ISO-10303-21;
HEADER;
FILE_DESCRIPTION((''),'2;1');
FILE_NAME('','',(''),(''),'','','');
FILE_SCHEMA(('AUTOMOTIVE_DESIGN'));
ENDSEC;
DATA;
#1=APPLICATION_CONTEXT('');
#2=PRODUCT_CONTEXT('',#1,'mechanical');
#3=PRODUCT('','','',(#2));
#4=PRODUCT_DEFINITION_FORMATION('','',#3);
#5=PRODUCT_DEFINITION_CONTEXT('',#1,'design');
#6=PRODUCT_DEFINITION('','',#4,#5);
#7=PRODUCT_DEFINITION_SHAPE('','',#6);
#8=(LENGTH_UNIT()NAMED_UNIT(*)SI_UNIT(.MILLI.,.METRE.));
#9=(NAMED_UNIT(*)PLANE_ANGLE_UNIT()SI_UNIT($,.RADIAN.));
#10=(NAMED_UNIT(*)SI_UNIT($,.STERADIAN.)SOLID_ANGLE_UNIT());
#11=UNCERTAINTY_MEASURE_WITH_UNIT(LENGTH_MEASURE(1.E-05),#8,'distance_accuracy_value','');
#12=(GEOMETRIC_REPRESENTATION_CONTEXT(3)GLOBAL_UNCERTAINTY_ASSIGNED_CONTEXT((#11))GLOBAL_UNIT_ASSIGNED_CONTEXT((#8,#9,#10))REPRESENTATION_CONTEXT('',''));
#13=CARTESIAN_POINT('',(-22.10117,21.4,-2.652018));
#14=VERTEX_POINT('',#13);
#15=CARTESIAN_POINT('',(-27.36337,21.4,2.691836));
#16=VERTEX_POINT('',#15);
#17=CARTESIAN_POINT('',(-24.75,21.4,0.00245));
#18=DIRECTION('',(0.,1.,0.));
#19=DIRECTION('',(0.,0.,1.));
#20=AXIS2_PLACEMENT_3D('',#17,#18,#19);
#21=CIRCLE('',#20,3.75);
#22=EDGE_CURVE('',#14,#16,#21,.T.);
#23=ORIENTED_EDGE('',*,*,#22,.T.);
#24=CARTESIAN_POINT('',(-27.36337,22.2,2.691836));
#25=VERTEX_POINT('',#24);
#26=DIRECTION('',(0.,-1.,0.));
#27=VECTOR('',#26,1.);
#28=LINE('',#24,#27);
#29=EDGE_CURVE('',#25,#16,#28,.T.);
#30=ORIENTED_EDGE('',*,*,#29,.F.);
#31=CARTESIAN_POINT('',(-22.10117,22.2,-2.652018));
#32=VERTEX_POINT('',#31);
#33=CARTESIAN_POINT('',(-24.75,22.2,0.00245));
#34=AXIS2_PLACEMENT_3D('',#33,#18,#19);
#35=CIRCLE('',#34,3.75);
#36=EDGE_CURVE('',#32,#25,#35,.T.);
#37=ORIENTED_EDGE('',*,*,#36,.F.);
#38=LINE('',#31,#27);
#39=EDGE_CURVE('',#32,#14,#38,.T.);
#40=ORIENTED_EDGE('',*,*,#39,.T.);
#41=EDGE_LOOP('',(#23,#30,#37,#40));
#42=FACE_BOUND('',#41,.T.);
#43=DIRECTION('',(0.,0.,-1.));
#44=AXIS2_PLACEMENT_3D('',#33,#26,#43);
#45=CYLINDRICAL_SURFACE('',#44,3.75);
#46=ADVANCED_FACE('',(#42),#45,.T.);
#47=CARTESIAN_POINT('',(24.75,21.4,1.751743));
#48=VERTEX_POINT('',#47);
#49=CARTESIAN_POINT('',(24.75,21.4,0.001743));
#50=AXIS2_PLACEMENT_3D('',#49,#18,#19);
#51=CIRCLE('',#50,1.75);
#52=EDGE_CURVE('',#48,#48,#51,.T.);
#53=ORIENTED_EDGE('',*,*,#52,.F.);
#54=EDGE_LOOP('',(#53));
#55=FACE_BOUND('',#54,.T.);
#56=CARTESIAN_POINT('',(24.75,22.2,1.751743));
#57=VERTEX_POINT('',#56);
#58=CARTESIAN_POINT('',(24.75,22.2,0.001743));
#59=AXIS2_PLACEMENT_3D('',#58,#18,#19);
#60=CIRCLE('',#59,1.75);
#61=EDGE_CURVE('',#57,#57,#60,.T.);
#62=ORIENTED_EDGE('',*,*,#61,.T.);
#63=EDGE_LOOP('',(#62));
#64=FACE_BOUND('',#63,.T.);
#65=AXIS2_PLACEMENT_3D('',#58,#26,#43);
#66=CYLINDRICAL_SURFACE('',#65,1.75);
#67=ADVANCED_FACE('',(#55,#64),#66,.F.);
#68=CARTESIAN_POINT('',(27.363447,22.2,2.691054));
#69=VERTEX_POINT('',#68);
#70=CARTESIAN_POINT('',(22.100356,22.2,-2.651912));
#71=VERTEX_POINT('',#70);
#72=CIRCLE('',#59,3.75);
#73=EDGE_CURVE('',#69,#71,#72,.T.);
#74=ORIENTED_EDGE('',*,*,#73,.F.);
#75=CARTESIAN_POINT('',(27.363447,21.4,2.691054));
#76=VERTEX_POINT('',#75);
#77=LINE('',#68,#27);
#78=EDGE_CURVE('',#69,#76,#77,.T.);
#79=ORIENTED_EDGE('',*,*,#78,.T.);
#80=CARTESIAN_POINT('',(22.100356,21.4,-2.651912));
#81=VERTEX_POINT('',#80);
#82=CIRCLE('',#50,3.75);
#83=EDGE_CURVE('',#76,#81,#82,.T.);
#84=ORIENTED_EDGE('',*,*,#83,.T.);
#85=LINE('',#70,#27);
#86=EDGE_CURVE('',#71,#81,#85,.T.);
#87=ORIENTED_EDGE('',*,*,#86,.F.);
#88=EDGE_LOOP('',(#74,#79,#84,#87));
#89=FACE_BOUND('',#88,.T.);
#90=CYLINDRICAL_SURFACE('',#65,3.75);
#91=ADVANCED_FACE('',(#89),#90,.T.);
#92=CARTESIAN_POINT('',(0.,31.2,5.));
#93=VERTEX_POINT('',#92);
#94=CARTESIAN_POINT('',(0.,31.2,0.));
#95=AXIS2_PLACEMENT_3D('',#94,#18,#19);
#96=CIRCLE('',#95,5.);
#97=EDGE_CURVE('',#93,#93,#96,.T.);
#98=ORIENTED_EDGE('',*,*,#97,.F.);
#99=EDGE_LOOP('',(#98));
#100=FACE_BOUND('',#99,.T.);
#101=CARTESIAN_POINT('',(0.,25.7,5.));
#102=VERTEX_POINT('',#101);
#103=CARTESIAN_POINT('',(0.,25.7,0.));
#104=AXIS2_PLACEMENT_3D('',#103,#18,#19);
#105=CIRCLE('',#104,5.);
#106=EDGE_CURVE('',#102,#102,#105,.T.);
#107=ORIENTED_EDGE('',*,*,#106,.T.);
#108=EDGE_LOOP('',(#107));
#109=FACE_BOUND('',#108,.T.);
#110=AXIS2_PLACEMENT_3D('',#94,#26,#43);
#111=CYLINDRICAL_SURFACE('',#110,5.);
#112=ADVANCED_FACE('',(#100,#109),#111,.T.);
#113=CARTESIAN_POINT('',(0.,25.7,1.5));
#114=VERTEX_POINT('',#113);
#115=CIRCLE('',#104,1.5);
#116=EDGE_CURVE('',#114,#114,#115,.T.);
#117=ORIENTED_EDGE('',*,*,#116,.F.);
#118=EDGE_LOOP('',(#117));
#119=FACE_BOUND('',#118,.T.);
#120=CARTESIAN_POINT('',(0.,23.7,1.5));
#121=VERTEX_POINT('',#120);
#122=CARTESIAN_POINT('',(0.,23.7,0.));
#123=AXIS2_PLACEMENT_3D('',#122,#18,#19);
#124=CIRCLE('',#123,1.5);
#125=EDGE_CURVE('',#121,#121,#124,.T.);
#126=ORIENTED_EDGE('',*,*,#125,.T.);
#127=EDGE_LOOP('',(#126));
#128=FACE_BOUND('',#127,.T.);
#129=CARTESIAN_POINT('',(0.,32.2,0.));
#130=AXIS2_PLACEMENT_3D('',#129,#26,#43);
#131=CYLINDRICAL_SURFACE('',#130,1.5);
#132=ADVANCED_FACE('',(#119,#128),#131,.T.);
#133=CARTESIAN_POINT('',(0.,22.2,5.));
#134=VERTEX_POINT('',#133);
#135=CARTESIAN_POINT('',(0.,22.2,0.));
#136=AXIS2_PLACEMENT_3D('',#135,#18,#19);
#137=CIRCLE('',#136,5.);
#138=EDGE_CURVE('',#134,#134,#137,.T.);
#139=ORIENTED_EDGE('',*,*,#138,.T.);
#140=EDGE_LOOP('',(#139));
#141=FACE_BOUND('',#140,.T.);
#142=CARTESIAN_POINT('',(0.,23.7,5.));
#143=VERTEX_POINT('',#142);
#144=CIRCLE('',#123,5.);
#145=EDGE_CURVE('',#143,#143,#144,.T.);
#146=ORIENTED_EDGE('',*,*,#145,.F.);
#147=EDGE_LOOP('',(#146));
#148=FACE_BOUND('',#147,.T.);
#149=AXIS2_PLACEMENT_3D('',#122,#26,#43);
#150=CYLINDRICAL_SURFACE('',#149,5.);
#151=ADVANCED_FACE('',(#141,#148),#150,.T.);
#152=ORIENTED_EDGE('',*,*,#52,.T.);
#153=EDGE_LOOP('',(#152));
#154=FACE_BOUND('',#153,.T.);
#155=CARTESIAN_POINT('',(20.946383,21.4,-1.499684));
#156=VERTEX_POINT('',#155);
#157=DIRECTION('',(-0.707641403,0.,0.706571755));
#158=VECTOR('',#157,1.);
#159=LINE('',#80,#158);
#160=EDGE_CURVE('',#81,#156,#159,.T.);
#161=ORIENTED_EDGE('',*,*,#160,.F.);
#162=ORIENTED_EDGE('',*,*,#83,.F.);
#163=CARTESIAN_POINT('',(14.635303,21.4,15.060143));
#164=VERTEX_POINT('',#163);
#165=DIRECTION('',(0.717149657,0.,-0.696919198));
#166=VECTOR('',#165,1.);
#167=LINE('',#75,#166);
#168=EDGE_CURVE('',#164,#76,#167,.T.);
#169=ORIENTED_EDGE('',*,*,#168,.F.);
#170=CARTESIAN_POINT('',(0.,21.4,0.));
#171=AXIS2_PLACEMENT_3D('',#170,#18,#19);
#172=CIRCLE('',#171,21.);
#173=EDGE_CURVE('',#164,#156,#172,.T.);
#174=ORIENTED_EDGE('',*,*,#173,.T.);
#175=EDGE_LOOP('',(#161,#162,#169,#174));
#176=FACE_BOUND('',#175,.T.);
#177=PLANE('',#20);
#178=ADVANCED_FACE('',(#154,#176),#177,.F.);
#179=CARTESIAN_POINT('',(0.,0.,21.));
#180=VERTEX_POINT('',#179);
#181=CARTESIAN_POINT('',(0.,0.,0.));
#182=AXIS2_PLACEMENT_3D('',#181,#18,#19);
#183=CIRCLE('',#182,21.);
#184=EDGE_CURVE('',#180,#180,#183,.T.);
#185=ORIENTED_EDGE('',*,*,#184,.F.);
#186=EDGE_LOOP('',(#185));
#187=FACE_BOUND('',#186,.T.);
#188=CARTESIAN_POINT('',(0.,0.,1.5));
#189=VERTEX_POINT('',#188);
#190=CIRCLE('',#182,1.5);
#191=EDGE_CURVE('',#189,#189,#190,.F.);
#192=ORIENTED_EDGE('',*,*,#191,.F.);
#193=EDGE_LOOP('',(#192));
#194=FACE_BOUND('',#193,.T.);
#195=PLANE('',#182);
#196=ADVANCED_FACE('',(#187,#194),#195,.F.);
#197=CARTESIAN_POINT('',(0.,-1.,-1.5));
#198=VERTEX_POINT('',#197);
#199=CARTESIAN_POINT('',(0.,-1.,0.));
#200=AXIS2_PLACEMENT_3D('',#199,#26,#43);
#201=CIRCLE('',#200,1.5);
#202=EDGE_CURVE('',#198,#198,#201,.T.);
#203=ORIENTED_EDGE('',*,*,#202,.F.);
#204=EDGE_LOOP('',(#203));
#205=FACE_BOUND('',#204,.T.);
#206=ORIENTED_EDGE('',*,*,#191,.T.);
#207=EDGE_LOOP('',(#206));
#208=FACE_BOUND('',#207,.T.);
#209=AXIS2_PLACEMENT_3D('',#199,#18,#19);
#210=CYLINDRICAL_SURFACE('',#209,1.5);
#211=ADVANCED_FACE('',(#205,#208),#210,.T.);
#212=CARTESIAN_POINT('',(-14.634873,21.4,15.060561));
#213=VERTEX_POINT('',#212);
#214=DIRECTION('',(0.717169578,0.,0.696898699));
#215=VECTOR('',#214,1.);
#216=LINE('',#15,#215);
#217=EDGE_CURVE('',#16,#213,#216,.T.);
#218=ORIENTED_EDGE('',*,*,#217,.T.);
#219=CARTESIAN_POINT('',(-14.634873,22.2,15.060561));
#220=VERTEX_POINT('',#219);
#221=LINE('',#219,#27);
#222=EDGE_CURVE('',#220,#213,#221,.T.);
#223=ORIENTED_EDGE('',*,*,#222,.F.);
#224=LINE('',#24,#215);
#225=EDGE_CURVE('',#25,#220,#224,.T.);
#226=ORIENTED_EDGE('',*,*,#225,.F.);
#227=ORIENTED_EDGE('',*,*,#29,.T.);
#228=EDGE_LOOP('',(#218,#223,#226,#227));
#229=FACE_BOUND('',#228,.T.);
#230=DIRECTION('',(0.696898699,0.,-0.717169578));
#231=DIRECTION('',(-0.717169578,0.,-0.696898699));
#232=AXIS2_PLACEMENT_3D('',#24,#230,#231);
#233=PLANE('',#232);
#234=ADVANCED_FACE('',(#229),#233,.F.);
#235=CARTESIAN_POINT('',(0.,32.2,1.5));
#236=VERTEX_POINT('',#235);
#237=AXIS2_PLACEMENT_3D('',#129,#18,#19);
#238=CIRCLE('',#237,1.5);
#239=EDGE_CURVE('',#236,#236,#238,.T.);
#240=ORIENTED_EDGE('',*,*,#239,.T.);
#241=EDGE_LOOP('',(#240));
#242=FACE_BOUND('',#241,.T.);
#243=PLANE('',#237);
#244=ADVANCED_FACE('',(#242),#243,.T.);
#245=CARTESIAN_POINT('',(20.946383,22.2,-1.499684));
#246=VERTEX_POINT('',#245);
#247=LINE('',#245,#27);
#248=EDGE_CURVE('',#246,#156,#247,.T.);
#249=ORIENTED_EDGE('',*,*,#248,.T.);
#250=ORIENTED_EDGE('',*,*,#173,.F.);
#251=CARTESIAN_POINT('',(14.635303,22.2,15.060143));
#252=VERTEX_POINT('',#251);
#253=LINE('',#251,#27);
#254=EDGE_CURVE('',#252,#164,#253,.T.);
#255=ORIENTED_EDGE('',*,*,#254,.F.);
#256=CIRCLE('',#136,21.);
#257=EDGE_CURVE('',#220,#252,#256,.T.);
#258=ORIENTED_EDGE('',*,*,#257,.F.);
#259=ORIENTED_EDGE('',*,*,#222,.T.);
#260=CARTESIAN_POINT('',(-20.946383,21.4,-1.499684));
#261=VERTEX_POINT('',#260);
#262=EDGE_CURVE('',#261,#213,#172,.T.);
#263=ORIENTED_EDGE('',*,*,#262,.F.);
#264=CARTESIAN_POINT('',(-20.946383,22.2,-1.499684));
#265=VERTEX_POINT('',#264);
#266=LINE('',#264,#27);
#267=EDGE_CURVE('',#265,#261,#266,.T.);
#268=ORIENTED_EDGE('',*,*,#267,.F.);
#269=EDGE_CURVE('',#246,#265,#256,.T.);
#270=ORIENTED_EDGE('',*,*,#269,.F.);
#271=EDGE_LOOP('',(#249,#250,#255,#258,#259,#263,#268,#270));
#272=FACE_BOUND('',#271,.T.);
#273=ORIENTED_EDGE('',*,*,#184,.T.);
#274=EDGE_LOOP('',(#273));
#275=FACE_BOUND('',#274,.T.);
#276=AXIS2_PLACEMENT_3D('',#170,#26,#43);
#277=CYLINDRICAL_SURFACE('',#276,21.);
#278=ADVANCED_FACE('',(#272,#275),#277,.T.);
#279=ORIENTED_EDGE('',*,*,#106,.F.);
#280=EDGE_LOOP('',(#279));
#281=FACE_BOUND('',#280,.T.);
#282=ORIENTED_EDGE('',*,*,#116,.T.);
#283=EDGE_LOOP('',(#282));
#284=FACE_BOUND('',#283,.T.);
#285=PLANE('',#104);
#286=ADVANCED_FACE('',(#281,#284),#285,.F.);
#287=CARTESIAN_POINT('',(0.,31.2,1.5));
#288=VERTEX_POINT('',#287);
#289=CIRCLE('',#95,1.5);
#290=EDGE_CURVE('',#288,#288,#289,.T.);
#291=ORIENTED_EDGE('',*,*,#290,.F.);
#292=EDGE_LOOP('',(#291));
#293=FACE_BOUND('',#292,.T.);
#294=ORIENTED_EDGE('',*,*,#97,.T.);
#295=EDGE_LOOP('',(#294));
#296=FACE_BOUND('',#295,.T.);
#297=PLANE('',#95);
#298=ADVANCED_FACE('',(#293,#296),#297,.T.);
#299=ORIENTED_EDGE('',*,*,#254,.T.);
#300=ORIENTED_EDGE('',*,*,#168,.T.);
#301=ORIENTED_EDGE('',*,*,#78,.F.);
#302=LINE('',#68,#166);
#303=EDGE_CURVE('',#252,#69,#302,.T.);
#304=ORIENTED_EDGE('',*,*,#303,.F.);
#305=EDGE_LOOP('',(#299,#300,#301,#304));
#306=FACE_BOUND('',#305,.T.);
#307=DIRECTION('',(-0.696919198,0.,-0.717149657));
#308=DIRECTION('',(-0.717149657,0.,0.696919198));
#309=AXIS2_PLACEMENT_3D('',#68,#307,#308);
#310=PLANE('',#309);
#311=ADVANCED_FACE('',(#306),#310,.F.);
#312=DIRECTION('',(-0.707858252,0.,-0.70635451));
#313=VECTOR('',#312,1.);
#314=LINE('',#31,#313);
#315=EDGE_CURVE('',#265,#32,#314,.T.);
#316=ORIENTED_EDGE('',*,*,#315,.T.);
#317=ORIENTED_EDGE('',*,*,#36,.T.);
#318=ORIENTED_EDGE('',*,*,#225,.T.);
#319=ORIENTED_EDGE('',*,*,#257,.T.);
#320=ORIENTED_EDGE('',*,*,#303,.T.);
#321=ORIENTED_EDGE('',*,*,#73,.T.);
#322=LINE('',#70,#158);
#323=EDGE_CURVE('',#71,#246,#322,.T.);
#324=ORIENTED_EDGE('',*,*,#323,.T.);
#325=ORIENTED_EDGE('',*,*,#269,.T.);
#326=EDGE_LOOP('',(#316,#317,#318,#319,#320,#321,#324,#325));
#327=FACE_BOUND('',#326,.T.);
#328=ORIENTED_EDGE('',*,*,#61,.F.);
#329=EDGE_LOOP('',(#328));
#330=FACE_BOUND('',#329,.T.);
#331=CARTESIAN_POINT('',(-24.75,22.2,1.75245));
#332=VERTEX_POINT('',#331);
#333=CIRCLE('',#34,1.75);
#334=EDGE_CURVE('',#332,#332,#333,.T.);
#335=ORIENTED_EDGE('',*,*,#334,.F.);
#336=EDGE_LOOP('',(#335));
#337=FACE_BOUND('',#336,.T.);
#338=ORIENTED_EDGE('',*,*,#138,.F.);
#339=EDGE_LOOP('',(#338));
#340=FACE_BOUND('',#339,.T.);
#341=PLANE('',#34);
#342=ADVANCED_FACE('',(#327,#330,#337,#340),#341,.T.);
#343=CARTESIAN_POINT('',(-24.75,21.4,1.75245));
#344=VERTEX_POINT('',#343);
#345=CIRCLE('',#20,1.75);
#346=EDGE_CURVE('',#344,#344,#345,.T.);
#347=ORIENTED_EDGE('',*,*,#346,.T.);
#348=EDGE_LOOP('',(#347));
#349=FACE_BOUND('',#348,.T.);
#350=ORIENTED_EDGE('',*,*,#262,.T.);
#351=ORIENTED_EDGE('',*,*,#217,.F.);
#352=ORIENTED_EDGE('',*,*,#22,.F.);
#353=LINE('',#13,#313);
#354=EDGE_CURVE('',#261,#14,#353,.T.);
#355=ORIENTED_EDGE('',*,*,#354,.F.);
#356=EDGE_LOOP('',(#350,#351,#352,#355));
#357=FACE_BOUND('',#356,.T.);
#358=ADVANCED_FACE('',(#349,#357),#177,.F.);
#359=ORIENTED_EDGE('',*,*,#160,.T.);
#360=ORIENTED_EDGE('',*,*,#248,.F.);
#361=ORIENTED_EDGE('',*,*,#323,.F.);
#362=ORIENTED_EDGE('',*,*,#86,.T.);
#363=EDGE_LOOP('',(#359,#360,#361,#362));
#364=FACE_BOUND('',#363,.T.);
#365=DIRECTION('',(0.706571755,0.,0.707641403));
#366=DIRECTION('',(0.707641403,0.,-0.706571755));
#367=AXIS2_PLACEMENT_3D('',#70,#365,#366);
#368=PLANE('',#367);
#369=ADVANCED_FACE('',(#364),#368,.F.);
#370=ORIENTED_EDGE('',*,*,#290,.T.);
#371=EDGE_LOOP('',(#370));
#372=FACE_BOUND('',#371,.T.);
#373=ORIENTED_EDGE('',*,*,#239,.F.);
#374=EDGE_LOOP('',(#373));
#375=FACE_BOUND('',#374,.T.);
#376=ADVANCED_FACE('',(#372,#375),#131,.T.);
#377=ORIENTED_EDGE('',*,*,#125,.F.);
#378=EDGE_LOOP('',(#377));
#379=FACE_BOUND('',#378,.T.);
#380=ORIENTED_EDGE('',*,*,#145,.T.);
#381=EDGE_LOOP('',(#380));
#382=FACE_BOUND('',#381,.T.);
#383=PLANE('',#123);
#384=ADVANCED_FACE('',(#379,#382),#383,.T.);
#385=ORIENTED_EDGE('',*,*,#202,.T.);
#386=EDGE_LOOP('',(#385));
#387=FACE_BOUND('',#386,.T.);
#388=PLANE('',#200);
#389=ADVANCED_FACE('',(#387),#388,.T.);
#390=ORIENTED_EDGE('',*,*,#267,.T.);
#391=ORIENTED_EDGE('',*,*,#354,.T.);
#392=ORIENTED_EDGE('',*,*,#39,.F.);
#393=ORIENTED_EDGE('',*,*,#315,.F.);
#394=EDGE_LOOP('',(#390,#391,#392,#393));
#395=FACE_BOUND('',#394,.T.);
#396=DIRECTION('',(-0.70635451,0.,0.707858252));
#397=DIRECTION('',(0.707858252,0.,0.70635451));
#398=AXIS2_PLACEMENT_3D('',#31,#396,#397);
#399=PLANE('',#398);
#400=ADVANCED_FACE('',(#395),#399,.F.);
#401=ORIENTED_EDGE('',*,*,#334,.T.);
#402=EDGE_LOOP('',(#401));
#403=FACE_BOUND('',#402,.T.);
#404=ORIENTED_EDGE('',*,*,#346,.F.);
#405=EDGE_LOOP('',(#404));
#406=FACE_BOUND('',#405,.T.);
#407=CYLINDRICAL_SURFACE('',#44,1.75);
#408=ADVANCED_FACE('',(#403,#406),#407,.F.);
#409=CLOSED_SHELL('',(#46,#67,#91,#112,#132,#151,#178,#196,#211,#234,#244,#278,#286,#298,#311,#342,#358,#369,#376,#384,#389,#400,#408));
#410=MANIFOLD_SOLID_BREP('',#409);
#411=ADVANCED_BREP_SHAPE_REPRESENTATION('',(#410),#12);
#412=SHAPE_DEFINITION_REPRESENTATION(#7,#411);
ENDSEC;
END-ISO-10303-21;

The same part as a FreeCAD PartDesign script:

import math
import FreeCAD as App
import Part
import Sketcher

V = App.Vector

doc = App.newDocument("Part")
body = doc.addObject("PartDesign::Body", "Body")

# Sketch on XZ plane
sketch1 = doc.addObject("Sketcher::SketchObject", "Sketch")
body.addObject(sketch1)
sketch1.AttachmentSupport = (doc.XZ_Plane, [""])
sketch1.MapMode = "FlatFace"
sketch1.addGeometry(Part.Circle(V(0, 0, 0), V(0, 0, 1), 21), False)
sketch1.addConstraint([
    Sketcher.Constraint("Coincident", 0, 3, -1, 1),
    Sketcher.Constraint("Diameter", 0, 42.0),
])
pad1 = doc.addObject("PartDesign::Pad", "Pad")
body.addObject(pad1)
pad1.Profile = sketch1
pad1.Length = 21.4
pad1.Reversed = True

# Sketch on XZ plane
sketch2 = doc.addObject("Sketcher::SketchObject", "Sketch001")
body.addObject(sketch2)
sketch2.AttachmentSupport = (doc.XZ_Plane, [""])
sketch2.MapMode = "FlatFace"
sketch2.AttachmentOffset = App.Placement(V(0, 0, -21.4), App.Rotation())
sketch2.addGeometry([
    Part.LineSegment(V(-27.36337, 2.691836, 0), V(-14.634873, 15.060561, 0)),  # 0
    Part.ArcOfCircle(Part.Circle(V(0, 0, 0), V(0, 0, 1), 21), math.radians(45.81965), math.radians(134.178713)),  # 1
    Part.LineSegment(V(14.635303, 15.060143, 0), V(27.363447, 2.691054, 0)),  # 2
    Part.ArcOfCircle(Part.Circle(V(24.75, 0.001743, 0), V(0, 0, 1), 3.75), math.radians(-134.956664), math.radians(45.81965)),  # 3
    Part.LineSegment(V(22.100356, -2.651912, 0), V(20.946383, -1.499684, 0)),  # 4
    Part.ArcOfCircle(Part.Circle(V(0, 0, 0), V(0, 0, 1), 21), math.radians(-175.904822), math.radians(-4.095178)),  # 5
    Part.LineSegment(V(-20.946383, -1.499684, 0), V(-22.10117, -2.652018, 0)),  # 6
    Part.ArcOfCircle(Part.Circle(V(-24.75, 0.00245, 0), V(0, 0, 1), 3.75), math.radians(134.178713), math.radians(314.939077)),  # 7
    Part.Circle(V(-24.75, 0.00245, 0), V(0, 0, 1), 1.75),  # 8
    Part.Circle(V(24.75, 0.001743, 0), V(0, 0, 1), 1.75),  # 9
], False)
sketch2.addConstraint([
    Sketcher.Constraint("Tangent", 0, 2, 1, 2),
    Sketcher.Constraint("Tangent", 1, 1, 2, 1),
    Sketcher.Constraint("Tangent", 2, 2, 3, 2),
    Sketcher.Constraint("Tangent", 3, 1, 4, 1),
    Sketcher.Constraint("Coincident", 4, 2, 5, 2),
    Sketcher.Constraint("Coincident", 5, 1, 6, 1),
    Sketcher.Constraint("Tangent", 6, 2, 7, 2),
    Sketcher.Constraint("Tangent", 7, 1, 0, 1),
    Sketcher.Constraint("Coincident", 1, 3, -1, 1),
    Sketcher.Constraint("Coincident", 5, 3, -1, 1),
    Sketcher.Constraint("Coincident", 8, 3, 7, 3),
    Sketcher.Constraint("Coincident", 9, 3, 3, 3),
    Sketcher.Constraint("Equal", 1, 5),
    Sketcher.Constraint("Equal", 3, 7),
    Sketcher.Constraint("Equal", 8, 9),
    Sketcher.Constraint("Horizontal", 4, 2, 5, 1),
    Sketcher.Constraint("Equal", 0, 2),
    Sketcher.Constraint("Radius", 1, 21.0),
    Sketcher.Constraint("Diameter", 8, 3.5),
    Sketcher.Constraint("Radius", 3, 3.75),
    Sketcher.Constraint("DistanceX", 7, 3, 3, 3, 49.5),
    Sketcher.Constraint("DistanceY", 3, 3, 1, 1, 15.0584),
    Sketcher.Constraint("DistanceX", 7, 1, 6, 2, 5.2622),
    Sketcher.Constraint("Distance", 4, 1.630732),
])
pad2 = doc.addObject("PartDesign::Pad", "Pad001")
body.addObject(pad2)
pad2.Profile = sketch2
pad2.Length = 0.8
pad2.Reversed = True

# Sketch on XZ plane
sketch3 = doc.addObject("Sketcher::SketchObject", "Sketch002")
body.addObject(sketch3)
sketch3.AttachmentSupport = (doc.XZ_Plane, [""])
sketch3.MapMode = "FlatFace"
sketch3.AttachmentOffset = App.Placement(V(0, 0, -22.2), App.Rotation())
sketch3.addGeometry(Part.Circle(V(0, 0, 0), V(0, 0, 1), 5), False)
sketch3.addConstraint([
    Sketcher.Constraint("Coincident", 0, 3, -1, 1),
    Sketcher.Constraint("Diameter", 0, 10.0),
])
pad3 = doc.addObject("PartDesign::Pad", "Pad002")
body.addObject(pad3)
pad3.Profile = sketch3
pad3.Length = 1.5
pad3.Reversed = True

# Sketch on XZ plane
sketch4 = doc.addObject("Sketcher::SketchObject", "Sketch003")
body.addObject(sketch4)
sketch4.AttachmentSupport = (doc.XZ_Plane, [""])
sketch4.MapMode = "FlatFace"
sketch4.AttachmentOffset = App.Placement(V(0, 0, -23.7), App.Rotation())
sketch4.addGeometry(Part.Circle(V(0, 0, 0), V(0, 0, 1), 1.5), False)
sketch4.addConstraint([
    Sketcher.Constraint("Coincident", 0, 3, -1, 1),
    Sketcher.Constraint("Diameter", 0, 3.0),
])
pad4 = doc.addObject("PartDesign::Pad", "Pad003")
body.addObject(pad4)
pad4.Profile = sketch4
pad4.Length = 8.5
pad4.Reversed = True

# Sketch on XZ plane
sketch5 = doc.addObject("Sketcher::SketchObject", "Sketch004")
body.addObject(sketch5)
sketch5.AttachmentSupport = (doc.XZ_Plane, [""])
sketch5.MapMode = "FlatFace"
sketch5.AttachmentOffset = App.Placement(V(0, 0, -25.7), App.Rotation())
sketch5.addGeometry([
    Part.Circle(V(0, 0, 0), V(0, 0, 1), 5),
    Part.Circle(V(0, 0, 0), V(0, 0, 1), 1.5),
], False)
sketch5.addConstraint([
    Sketcher.Constraint("Coincident", 0, 3, -1, 1),
    Sketcher.Constraint("Coincident", 1, 3, -1, 1),
    Sketcher.Constraint("Diameter", 0, 10.0),
    Sketcher.Constraint("Diameter", 1, 3.0),
])
pad5 = doc.addObject("PartDesign::Pad", "Pad004")
body.addObject(pad5)
pad5.Profile = sketch5
pad5.Length = 5.5
pad5.Reversed = True

# Sketch on XZ plane
sketch6 = doc.addObject("Sketcher::SketchObject", "Sketch005")
body.addObject(sketch6)
sketch6.AttachmentSupport = (doc.XZ_Plane, [""])
sketch6.MapMode = "FlatFace"
sketch6.AttachmentOffset = App.Placement(V(0, 0, 1), App.Rotation())
sketch6.addGeometry(Part.Circle(V(0, 0, 0), V(0, 0, 1), 1.5), False)
sketch6.addConstraint([
    Sketcher.Constraint("Coincident", 0, 3, -1, 1),
    Sketcher.Constraint("Diameter", 0, 3.0),
])
pad6 = doc.addObject("PartDesign::Pad", "Pad005")
body.addObject(pad6)
pad6.Profile = sketch6
pad6.Length = 1
pad6.Reversed = True

doc.recompute()
